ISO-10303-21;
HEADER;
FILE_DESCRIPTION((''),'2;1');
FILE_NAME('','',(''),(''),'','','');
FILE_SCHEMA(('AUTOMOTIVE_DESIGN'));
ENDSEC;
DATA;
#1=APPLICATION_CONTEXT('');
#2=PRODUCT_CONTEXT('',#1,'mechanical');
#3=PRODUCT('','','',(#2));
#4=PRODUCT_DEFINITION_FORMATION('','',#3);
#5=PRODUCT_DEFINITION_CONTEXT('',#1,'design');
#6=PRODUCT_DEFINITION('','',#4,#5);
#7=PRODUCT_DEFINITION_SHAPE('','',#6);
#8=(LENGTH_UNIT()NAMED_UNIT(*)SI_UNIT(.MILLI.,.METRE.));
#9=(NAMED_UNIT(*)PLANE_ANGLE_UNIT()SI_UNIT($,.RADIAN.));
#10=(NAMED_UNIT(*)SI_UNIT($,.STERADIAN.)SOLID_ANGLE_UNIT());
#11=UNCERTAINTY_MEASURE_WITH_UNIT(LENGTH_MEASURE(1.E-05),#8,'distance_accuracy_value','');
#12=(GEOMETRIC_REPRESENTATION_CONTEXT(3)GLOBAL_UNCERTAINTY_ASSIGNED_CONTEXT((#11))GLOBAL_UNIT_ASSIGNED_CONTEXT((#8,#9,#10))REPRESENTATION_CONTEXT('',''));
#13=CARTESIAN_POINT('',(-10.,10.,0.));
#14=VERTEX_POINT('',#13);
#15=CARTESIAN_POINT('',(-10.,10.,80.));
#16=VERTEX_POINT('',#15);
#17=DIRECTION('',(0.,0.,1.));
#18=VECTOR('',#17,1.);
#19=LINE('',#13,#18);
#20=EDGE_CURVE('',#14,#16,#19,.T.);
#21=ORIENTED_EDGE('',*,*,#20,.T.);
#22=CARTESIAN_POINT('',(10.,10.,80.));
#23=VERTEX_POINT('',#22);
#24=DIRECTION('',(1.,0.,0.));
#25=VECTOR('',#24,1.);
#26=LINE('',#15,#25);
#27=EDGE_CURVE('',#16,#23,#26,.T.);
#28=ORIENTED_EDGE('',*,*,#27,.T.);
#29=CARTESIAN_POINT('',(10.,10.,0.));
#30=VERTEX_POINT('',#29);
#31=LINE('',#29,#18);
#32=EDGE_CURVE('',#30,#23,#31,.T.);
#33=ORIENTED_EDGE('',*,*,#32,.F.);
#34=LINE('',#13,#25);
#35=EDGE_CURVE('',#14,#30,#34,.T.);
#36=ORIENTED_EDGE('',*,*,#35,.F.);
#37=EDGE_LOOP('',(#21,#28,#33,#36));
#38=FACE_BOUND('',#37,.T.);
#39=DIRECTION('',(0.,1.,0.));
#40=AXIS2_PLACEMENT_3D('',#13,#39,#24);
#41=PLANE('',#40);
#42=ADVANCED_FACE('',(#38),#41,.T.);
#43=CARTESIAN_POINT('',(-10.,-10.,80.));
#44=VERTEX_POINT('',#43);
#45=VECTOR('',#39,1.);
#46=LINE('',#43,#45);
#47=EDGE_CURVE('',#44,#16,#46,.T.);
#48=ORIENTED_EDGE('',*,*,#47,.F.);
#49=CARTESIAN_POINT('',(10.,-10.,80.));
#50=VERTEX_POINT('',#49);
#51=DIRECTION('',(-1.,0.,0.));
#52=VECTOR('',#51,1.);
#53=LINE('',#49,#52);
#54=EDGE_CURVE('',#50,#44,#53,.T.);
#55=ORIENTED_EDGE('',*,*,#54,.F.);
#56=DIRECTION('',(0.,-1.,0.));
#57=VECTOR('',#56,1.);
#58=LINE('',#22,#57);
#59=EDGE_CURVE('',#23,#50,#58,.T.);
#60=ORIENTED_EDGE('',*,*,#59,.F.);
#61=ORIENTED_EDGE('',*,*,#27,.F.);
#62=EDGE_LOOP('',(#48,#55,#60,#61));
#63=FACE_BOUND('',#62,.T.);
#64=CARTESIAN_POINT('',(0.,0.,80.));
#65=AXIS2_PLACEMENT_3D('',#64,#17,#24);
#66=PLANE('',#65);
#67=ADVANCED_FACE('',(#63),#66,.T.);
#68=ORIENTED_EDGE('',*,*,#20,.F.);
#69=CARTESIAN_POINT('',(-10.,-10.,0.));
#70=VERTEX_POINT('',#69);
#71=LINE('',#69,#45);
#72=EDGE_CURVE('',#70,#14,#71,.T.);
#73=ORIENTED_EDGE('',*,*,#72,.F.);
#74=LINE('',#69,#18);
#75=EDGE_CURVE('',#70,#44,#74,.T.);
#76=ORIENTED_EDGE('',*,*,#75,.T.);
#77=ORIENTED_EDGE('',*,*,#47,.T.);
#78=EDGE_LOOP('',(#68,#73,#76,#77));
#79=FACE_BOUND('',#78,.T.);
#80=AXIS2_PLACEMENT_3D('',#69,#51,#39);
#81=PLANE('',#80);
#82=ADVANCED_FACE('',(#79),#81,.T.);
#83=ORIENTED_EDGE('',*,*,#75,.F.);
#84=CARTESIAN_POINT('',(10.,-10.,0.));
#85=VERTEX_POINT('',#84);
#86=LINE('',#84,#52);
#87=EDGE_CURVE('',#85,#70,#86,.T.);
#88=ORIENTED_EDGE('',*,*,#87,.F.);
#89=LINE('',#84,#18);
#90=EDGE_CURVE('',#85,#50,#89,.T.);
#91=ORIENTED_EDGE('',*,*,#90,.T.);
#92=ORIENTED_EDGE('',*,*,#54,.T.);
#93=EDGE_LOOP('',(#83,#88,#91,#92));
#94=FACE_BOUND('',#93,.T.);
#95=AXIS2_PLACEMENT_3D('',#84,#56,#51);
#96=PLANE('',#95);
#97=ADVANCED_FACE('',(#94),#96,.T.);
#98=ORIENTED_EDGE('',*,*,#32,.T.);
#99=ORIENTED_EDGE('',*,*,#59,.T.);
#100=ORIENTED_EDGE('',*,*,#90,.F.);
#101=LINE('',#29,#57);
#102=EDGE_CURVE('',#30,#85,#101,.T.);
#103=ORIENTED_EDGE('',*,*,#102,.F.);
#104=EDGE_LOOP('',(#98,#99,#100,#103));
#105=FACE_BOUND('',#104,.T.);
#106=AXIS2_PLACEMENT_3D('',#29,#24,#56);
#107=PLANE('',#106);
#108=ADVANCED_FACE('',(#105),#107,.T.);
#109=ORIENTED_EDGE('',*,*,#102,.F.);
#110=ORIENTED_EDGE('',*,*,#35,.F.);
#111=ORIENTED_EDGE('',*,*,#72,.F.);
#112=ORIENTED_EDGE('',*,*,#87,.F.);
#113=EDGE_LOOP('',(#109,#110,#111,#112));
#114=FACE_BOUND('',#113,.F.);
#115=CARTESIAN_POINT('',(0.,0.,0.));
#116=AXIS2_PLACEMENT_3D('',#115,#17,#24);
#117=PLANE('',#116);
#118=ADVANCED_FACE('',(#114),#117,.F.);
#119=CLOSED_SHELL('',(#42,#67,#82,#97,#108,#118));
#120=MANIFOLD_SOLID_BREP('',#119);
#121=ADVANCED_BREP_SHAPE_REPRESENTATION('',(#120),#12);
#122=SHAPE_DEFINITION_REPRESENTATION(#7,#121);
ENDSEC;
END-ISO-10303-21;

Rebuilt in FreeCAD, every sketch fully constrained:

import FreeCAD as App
import Part
import Sketcher

V = App.Vector


def add_polygon(sketch, points):
    """Adds a closed chain of lines whose ends are joined by coincident constraints."""
    first, n = sketch.GeometryCount, len(points)
    for a, b in zip(points, points[1:] + points[:1]):
        sketch.addGeometry(Part.LineSegment(App.Vector(*a, 0), App.Vector(*b, 0)), False)
    for i in range(n):
        sketch.addConstraint(Sketcher.Constraint("Coincident", first + i, 2, first + (i + 1) % n, 1))

doc = App.newDocument("Part")
body = doc.addObject("PartDesign::Body", "Body")

sketch1 = body.newObject("Sketcher::SketchObject", "Sketch")
sketch1.AttachmentSupport = (doc.getObject("XY_Plane"), [""])
sketch1.MapMode = "FlatFace"
add_polygon(sketch1, [(-10, -10), (10, -10), (10, 10), (-10, 10)])
sketch1.addConstraint(Sketcher.Constraint("Horizontal", 0))
sketch1.addConstraint(Sketcher.Constraint("Vertical", 1))
sketch1.addConstraint(Sketcher.Constraint("Horizontal", 2))
sketch1.addConstraint(Sketcher.Constraint("Vertical", 3))
sketch1.addConstraint(Sketcher.Constraint("Symmetric", 0, 2, 2, 2, -1, 1))
sketch1.addConstraint(Sketcher.Constraint("Equal", 2, 1))
sketch1.addConstraint(Sketcher.Constraint("DistanceX", 0, 1, 0, 2, 20.0))
pad1 = body.newObject("PartDesign::Pad", "Pad")
pad1.Profile = sketch1
pad1.Length = 80

doc.recompute()
